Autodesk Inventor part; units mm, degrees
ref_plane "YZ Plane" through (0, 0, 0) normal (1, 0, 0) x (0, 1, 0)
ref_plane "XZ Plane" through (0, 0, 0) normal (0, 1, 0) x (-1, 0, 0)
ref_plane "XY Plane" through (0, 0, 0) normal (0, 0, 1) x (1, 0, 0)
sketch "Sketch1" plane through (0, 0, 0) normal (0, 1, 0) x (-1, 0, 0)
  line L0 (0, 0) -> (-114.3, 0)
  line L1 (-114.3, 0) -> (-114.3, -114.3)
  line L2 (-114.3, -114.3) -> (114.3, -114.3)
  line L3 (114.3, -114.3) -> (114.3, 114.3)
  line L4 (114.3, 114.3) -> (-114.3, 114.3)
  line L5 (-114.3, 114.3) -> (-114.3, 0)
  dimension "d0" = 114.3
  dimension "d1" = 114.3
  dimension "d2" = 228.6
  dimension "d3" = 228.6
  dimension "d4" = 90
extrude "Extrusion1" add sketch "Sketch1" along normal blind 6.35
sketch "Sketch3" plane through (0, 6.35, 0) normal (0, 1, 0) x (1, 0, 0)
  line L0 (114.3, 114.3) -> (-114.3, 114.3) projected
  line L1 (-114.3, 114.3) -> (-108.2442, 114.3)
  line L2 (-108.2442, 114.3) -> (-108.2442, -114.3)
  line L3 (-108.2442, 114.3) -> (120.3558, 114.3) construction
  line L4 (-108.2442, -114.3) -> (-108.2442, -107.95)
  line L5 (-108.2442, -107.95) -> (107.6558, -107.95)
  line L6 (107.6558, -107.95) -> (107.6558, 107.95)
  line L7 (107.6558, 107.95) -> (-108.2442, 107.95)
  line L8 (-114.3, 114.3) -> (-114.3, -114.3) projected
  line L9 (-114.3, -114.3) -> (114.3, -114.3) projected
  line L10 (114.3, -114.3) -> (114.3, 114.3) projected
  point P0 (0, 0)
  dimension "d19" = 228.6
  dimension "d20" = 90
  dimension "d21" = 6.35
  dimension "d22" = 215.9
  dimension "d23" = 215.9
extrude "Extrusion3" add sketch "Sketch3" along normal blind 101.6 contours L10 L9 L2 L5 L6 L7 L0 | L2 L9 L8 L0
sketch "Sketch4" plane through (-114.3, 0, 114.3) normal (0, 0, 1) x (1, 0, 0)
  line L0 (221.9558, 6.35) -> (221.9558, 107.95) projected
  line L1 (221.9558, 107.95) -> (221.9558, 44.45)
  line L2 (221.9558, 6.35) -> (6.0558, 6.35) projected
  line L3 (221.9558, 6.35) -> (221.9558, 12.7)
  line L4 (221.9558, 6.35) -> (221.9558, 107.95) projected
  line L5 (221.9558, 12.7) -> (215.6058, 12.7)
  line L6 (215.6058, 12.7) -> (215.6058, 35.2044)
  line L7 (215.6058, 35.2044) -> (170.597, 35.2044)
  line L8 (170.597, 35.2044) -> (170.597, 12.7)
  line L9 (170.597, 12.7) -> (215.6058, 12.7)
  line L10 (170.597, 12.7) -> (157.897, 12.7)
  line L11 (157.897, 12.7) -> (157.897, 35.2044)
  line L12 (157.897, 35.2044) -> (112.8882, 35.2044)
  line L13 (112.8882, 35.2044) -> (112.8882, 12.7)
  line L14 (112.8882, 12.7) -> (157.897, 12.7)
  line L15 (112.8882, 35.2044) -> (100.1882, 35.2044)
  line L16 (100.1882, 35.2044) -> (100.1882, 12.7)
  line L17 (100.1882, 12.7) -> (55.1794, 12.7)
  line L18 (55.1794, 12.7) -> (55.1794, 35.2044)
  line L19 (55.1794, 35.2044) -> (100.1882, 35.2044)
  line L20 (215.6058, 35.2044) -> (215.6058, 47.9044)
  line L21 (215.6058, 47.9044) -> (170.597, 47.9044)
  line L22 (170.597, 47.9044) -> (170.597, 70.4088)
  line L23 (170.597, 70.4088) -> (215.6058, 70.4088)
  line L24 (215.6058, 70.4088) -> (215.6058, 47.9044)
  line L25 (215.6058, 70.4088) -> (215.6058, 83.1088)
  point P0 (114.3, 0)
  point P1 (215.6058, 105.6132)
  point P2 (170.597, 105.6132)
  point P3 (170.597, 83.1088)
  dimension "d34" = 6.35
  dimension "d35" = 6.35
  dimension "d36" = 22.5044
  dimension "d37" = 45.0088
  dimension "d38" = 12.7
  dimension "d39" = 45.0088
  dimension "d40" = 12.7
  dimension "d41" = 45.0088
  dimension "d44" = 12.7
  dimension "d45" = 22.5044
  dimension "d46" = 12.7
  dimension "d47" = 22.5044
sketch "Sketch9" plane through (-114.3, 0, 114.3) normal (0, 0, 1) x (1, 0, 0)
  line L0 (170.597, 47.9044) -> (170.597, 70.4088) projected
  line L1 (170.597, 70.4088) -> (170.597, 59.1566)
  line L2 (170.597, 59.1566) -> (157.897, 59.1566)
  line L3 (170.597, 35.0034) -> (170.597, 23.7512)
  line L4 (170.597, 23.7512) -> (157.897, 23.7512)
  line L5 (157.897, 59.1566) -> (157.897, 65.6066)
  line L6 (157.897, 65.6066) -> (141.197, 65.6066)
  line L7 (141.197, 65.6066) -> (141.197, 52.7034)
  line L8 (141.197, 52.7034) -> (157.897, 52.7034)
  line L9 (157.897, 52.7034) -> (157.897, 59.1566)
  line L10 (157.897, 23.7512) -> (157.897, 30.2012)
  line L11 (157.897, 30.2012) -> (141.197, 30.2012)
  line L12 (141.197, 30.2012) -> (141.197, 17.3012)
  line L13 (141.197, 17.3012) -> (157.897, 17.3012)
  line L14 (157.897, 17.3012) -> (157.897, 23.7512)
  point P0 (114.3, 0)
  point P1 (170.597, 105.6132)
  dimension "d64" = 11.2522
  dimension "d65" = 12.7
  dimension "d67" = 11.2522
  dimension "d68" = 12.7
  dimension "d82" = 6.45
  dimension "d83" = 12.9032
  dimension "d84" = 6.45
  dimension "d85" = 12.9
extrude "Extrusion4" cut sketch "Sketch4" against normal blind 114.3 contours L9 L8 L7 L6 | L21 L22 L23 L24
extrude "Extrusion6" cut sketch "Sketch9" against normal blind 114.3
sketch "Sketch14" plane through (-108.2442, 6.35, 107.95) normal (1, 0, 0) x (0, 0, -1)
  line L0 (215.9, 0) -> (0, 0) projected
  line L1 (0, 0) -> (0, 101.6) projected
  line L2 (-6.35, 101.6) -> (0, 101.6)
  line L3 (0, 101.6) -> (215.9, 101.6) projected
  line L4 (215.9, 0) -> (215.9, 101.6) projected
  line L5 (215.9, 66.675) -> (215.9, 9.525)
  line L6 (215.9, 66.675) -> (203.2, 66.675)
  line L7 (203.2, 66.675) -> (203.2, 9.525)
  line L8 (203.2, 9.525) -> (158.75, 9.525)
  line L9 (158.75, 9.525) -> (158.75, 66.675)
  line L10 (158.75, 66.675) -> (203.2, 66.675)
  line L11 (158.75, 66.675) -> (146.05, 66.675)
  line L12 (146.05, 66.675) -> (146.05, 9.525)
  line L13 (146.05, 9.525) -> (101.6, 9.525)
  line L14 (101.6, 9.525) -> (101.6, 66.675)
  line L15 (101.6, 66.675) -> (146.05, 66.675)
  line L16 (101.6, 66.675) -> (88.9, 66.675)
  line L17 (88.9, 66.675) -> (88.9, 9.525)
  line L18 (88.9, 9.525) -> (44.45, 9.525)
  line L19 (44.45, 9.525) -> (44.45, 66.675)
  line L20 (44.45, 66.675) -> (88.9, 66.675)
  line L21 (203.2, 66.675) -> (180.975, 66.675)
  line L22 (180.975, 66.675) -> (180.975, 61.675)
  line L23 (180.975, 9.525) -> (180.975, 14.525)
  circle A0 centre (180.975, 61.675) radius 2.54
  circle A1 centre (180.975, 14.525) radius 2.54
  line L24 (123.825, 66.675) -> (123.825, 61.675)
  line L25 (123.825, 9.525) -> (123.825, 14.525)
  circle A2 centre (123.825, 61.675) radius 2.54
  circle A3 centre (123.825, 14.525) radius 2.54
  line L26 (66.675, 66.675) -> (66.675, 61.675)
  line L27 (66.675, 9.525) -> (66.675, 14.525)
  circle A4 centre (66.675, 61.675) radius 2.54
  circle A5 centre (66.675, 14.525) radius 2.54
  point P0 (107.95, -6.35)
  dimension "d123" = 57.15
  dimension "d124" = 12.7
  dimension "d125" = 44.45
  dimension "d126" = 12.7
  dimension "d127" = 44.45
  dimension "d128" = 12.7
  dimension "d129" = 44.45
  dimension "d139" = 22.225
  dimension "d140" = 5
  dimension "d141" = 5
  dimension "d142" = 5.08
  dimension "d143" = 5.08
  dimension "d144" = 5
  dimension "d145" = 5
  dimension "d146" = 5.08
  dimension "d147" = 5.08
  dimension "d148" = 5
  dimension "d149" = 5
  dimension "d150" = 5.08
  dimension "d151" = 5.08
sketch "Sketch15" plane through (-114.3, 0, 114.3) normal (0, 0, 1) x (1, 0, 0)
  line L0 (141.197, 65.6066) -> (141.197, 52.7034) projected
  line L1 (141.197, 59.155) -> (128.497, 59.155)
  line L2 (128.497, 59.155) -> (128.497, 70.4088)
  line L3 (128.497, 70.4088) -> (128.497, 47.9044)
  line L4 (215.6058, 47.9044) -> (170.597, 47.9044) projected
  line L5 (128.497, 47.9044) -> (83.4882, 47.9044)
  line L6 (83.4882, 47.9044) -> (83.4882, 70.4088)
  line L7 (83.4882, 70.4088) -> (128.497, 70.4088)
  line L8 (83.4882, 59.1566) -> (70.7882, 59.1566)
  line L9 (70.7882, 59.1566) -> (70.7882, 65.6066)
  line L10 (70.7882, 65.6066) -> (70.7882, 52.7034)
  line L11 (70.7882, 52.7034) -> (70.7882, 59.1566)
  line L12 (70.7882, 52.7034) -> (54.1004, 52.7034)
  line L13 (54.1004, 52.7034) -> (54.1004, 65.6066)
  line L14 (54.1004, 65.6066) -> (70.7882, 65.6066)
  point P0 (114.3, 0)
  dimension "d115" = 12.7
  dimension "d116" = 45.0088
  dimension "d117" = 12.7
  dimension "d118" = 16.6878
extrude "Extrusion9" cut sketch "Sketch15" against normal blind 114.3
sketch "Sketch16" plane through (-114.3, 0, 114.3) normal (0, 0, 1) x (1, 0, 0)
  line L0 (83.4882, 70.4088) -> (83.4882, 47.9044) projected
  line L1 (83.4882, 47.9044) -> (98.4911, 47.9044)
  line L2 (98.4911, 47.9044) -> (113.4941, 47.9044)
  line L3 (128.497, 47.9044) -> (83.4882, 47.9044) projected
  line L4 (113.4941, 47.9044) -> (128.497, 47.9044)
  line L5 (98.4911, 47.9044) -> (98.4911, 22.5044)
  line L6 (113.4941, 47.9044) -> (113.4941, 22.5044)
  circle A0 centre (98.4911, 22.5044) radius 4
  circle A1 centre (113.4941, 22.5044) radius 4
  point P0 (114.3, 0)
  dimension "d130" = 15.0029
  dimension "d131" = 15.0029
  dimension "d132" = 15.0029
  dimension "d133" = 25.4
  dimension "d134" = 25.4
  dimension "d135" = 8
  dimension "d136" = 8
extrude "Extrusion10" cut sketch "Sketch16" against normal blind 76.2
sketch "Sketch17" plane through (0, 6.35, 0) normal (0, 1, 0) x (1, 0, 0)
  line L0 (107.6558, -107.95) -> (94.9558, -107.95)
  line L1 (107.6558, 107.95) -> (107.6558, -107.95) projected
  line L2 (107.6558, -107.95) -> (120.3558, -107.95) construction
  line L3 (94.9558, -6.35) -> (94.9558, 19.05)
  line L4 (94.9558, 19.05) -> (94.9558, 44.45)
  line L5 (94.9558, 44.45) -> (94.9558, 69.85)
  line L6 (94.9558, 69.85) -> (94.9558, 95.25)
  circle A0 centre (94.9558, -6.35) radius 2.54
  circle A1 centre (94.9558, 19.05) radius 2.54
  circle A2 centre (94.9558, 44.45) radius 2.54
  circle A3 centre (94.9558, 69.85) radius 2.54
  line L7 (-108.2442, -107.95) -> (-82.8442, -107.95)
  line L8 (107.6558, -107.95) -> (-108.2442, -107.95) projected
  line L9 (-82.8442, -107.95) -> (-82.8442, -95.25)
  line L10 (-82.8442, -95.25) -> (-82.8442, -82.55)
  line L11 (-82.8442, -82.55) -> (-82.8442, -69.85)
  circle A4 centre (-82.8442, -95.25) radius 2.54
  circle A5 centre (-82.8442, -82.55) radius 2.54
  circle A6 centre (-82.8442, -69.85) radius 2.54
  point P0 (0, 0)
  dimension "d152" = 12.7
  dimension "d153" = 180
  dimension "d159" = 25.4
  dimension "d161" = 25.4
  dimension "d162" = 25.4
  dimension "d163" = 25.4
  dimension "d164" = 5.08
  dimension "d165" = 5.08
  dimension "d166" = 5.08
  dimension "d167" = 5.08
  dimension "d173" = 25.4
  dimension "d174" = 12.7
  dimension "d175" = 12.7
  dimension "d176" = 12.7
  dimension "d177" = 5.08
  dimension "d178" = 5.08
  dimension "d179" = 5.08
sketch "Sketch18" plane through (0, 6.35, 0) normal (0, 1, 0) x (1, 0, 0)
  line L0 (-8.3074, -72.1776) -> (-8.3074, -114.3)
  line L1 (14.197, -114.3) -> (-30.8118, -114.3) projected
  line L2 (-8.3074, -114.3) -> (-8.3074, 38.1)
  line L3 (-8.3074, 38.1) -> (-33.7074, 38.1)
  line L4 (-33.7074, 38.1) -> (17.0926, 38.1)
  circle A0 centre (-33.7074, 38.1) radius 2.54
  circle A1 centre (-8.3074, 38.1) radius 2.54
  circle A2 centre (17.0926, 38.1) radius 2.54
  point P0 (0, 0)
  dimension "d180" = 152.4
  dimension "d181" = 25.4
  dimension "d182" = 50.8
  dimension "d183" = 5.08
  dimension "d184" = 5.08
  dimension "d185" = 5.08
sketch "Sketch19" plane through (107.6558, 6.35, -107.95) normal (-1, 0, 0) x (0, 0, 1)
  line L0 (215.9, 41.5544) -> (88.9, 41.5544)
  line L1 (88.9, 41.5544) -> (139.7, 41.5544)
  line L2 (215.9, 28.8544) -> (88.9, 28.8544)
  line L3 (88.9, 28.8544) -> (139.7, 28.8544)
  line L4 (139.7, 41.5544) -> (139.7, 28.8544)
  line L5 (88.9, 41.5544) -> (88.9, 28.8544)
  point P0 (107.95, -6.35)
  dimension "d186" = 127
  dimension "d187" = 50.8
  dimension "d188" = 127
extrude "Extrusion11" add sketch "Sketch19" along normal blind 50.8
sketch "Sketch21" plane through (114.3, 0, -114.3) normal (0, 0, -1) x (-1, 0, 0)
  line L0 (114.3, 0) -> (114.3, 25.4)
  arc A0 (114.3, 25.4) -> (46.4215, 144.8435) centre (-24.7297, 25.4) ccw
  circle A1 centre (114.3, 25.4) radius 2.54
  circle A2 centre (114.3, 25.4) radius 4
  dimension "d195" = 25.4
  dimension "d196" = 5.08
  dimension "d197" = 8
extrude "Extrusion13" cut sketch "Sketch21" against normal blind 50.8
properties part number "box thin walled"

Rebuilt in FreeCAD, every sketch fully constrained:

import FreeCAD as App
import Part
import Sketcher
from FreeCAD import Vector
Q = App.Units.Quantity


def add_polygon(sketch, points):
    """Adds a closed chain of lines whose ends are joined by coincident constraints."""
    first, n = sketch.GeometryCount, len(points)
    for a, b in zip(points, points[1:] + points[:1]):
        sketch.addGeometry(Part.LineSegment(App.Vector(*a, 0), App.Vector(*b, 0)), False)
    for i in range(n):
        sketch.addConstraint(Sketcher.Constraint("Coincident", first + i, 2, first + (i + 1) % n, 1))

doc = App.newDocument("Part")
params = doc.addObject("Spreadsheet::Sheet", "Params")
for row, (alias, value) in enumerate([
    ("sketch1_width", "9 in"),
    ("pad1_length", "0.25 in"),
    ("sketch2_width", "9 in"),
    ("sketch2_width2", "8.5 in"),
    ("pad2_length", "4 in"),
    ("sketch3_width", "1.772 in"),
    ("sketch3_height", "0.886 in"),
    ("pocket1_length", "4.5 in"),
    ("sketch4_height", "0.508 in"),
    ("pocket2_length", "4.5 in"),
    ("sketch5_width", "1.772 in"),
    ("sketch5_width2", "0.657 in"),
    ("sketch5_height", "0.886 in"),
    ("sketch5_height2", "0.508 in"),
    ("pocket3_length", "4.5 in"),
    ("pocket4_length", "3 in"),
    ("sketch7_height", "2 in"),
    ("sketch7_width", "0.5 in"),
    ("pad3_length", "2 in"),
    ("pocket5_length", "2 in"),
], start=1):
    params.set(f"A{row}", alias)
    params.set(f"B{row}", "=" + value)
    params.setAlias(f"B{row}", alias)

body = doc.addObject("PartDesign::Body", "Body")

# Sketch on XZ plane
sketch1 = body.newObject("Sketcher::SketchObject", "Sketch")
sketch1.AttachmentSupport = (doc.getObject("XZ_Plane"), [""])
sketch1.MapMode = "FlatFace"
add_polygon(sketch1, [(114, 114), (114, -114), (-114, -114), (-114, 114)])  # lines 0-3
sketch1.addConstraint([
    Sketcher.Constraint("Vertical", 0),
    Sketcher.Constraint("Horizontal", 1),
    Sketcher.Constraint("Vertical", 2),
    Sketcher.Constraint("Horizontal", 3),
    Sketcher.Constraint("Symmetric", 0, 2, 2, 2, -1, 1),
    Sketcher.Constraint("Equal", 3, 0),
    Sketcher.Constraint("DistanceX", 1, 2, 1, 1, Q("9 in")),
])
sketch1.setExpression("Constraints[10]", "Params.sketch1_width")
pad1 = body.newObject("PartDesign::Pad", "Pad")
pad1.Profile = sketch1
pad1.setExpression("Length", "Params.pad1_length")
pad1.Reversed = True

# Sketch on XZ plane
sketch2 = body.newObject("Sketcher::SketchObject", "Sketch001")
sketch2.AttachmentSupport = (doc.getObject("XZ_Plane"), [""])
sketch2.MapMode = "FlatFace"
sketch2.AttachmentOffset = App.Placement(Vector(0, 0, -0.25 * 25.4), App.Rotation())
add_polygon(sketch2, [(114, 114), (114, -114), (-114, -114), (-114, 114)])  # lines 0-3
add_polygon(sketch2, [(108, 108), (-108, 108), (-108, -108), (108, -108)])  # lines 4-7
sketch2.addConstraint([
    Sketcher.Constraint("Vertical", 0),
    Sketcher.Constraint("Horizontal", 1),
    Sketcher.Constraint("Vertical", 2),
    Sketcher.Constraint("Horizontal", 3),
    Sketcher.Constraint("Horizontal", 4),
    Sketcher.Constraint("Vertical", 5),
    Sketcher.Constraint("Horizontal", 6),
    Sketcher.Constraint("Vertical", 7),
    Sketcher.Constraint("Symmetric", 0, 2, 2, 2, -1, 1),
    Sketcher.Constraint("Equal", 3, 0),
    Sketcher.Constraint("Equal", 6, 5),
    Sketcher.Constraint("DistanceX", 1, 2, 1, 1, Q("9 in")),
    Sketcher.Constraint("DistanceX", 4, 2, 4, 1, Q("8.5 in")),
    Sketcher.Constraint("DistanceY", 4, 2, 2, 2, Q("0.25 in")),
    Sketcher.Constraint("DistanceX", 4, 2, -1, 1, Q("108.2442 mm")),
])
sketch2.setExpression("Constraints[19]", "Params.sketch2_width")
sketch2.setExpression("Constraints[20]", "Params.sketch2_width2")
pad2 = body.newObject("PartDesign::Pad", "Pad001")
pad2.Profile = sketch2
pad2.setExpression("Length", "Params.pad2_length")
pad2.Reversed = True

# Sketch on XY plane
sketch3 = body.newObject("Sketcher::SketchObject", "Sketch002")
sketch3.AttachmentSupport = (doc.getObject("XY_Plane"), [""])
sketch3.MapMode = "FlatFace"
sketch3.AttachmentOffset = App.Placement(Vector(0, 0, 4.5 * 25.4), App.Rotation())
add_polygon(sketch3, [(56, 13), (101, 13), (101, 35), (56, 35)])  # lines 0-3
add_polygon(sketch3, [(56, 48), (101, 48), (101, 70), (56, 70)])  # lines 4-7
sketch3.addConstraint([
    Sketcher.Constraint("Horizontal", 0),
    Sketcher.Constraint("Vertical", 1),
    Sketcher.Constraint("Horizontal", 2),
    Sketcher.Constraint("Vertical", 3),
    Sketcher.Constraint("Horizontal", 4),
    Sketcher.Constraint("Vertical", 5),
    Sketcher.Constraint("Horizontal", 6),
    Sketcher.Constraint("Vertical", 7),
    Sketcher.Constraint("Vertical", 1, 2, 4, 2),
    Sketcher.Constraint("Vertical", 3, 2, 6, 2),
    Sketcher.Constraint("Equal", 3, 5),
    Sketcher.Constraint("DistanceY", -1, 1, 0, 2, Q("0.5 in")),
    Sketcher.Constraint("DistanceY", 1, 2, 4, 2, Q("0.5 in")),
    Sketcher.Constraint("DistanceX", 0, 1, 0, 2, Q("1.772 in")),
    Sketcher.Constraint("DistanceY", 1, 1, 1, 2, Q("0.886 in")),
    Sketcher.Constraint("DistanceX", -1, 1, 0, 2, Q("101.3058 mm")),
])
sketch3.setExpression("Constraints[21]", "Params.sketch3_width")
sketch3.setExpression("Constraints[22]", "Params.sketch3_height")
pocket1 = body.newObject("PartDesign::Pocket", "Pocket")
pocket1.Profile = sketch3
pocket1.setExpression("Length", "Params.pocket1_length")

# Sketch on XY plane
sketch4 = body.newObject("Sketcher::SketchObject", "Sketch003")
sketch4.AttachmentSupport = (doc.getObject("XY_Plane"), [""])
sketch4.MapMode = "FlatFace"
sketch4.AttachmentOffset = App.Placement(Vector(0, 0, 4.5 * 25.4), App.Rotation())
add_polygon(sketch4, [(44, 53), (44, 66), (27, 66), (27, 53)])  # lines 0-3
add_polygon(sketch4, [(44, 17), (44, 30), (27, 30), (27, 17)])  # lines 4-7
sketch4.addConstraint([
    Sketcher.Constraint("Vertical", 0),
    Sketcher.Constraint("Horizontal", 1),
    Sketcher.Constraint("Vertical", 2),
    Sketcher.Constraint("Horizontal", 3),
    Sketcher.Constraint("Vertical", 4),
    Sketcher.Constraint("Horizontal", 5),
    Sketcher.Constraint("Vertical", 6),
    Sketcher.Constraint("Horizontal", 7),
    Sketcher.Constraint("Vertical", 3, 2, 4, 2),
    Sketcher.Constraint("Vertical", 2, 2, 5, 2),
    Sketcher.Constraint("DistanceY", 0, 1, 0, 2, Q("0.508 in")),
    Sketcher.Constraint("DistanceY", 4, 1, 4, 2, Q("12.9 mm")),
    Sketcher.Constraint("DistanceX", 1, 2, 1, 1, Q("16.7 mm")),
    Sketcher.Constraint("DistanceX", -1, 1, 0, 2, Q("43.597 mm")),
    Sketcher.Constraint("DistanceY", -1, 1, 0, 2, Q("65.6066 mm")),
    Sketcher.Constraint("DistanceY", -1, 1, 4, 2, Q("30.2012 mm")),
])
sketch4.setExpression("Constraints[18]", "Params.sketch4_height")
pocket2 = body.newObject("PartDesign::Pocket", "Pocket001")
pocket2.Profile = sketch4
pocket2.setExpression("Length", "Params.pocket2_length")

# Sketch on XY plane
sketch5 = body.newObject("Sketcher::SketchObject", "Sketch004")
sketch5.AttachmentSupport = (doc.getObject("XY_Plane"), [""])
sketch5.MapMode = "FlatFace"
sketch5.AttachmentOffset = App.Placement(Vector(0, 0, 4.5 * 25.4), App.Rotation())
add_polygon(sketch5, [(14, 48), (14, 70), (-31, 70), (-31, 48)])  # lines 0-3
add_polygon(sketch5, [(-44, 53), (-44, 66), (-60, 66), (-60, 53)])  # lines 4-7
sketch5.addConstraint([
    Sketcher.Constraint("Vertical", 0),
    Sketcher.Constraint("Horizontal", 1),
    Sketcher.Constraint("Vertical", 2),
    Sketcher.Constraint("Horizontal", 3),
    Sketcher.Constraint("Vertical", 4),
    Sketcher.Constraint("Horizontal", 5),
    Sketcher.Constraint("Vertical", 6),
    Sketcher.Constraint("Horizontal", 7),
    Sketcher.Constraint("DistanceX", 4, 2, 1, 2, Q("0.5 in")),
    Sketcher.Constraint("DistanceX", 1, 2, 1, 1, Q("1.772 in")),
    Sketcher.Constraint("DistanceX", 5, 2, 5, 1, Q("0.657 in")),
    Sketcher.Constraint("DistanceY", 0, 1, 0, 2, Q("0.886 in")),
    Sketcher.Constraint("DistanceY", 4, 1, 4, 2, Q("0.508 in")),
    Sketcher.Constraint("DistanceY", -1, 1, 0, 2, Q("2.772 in")),
    Sketcher.Constraint("DistanceX", -1, 1, 0, 2, Q("14.197 mm")),
    Sketcher.Constraint("DistanceY", -1, 1, 4, 2, Q("65.6066 mm")),
])
sketch5.setExpression("Constraints[17]", "Params.sketch5_width")
sketch5.setExpression("Constraints[18]", "Params.sketch5_width2")
sketch5.setExpression("Constraints[19]", "Params.sketch5_height")
sketch5.setExpression("Constraints[20]", "Params.sketch5_height2")
pocket3 = body.newObject("PartDesign::Pocket", "Pocket002")
pocket3.Profile = sketch5
pocket3.setExpression("Length", "Params.pocket3_length")

# Sketch on XY plane
sketch6 = body.newObject("Sketcher::SketchObject", "Sketch005")
sketch6.AttachmentSupport = (doc.getObject("XY_Plane"), [""])
sketch6.MapMode = "FlatFace"
sketch6.AttachmentOffset = App.Placement(Vector(0, 0, 4.5 * 25.4), App.Rotation())
sketch6.addGeometry([
    Part.Circle(Vector(-0.8, 22.5, 0), Vector(0, 0, 1), 4),
    Part.Circle(Vector(-15.8, 22.5, 0), Vector(0, 0, 1), 4),
], False)
sketch6.addConstraint([
    Sketcher.Constraint("Equal", 0, 1),
    Sketcher.Constraint("Horizontal", 0, 3, 1, 3),
    Sketcher.Constraint("Diameter", 0, Q("8 mm")),
    Sketcher.Constraint("DistanceX", 1, 3, 0, 3, Q("15.003 mm")),
    Sketcher.Constraint("DistanceY", -1, 1, 0, 3, Q("0.886 in")),
    Sketcher.Constraint("DistanceX", 1, 3, -1, 1, Q("0.6224 in")),
])
pocket4 = body.newObject("PartDesign::Pocket", "Pocket003")
pocket4.Profile = sketch6
pocket4.setExpression("Length", "Params.pocket4_length")

# Sketch on YZ plane
sketch7 = body.newObject("Sketcher::SketchObject", "Sketch006")
sketch7.AttachmentSupport = (doc.getObject("YZ_Plane"), [""])
sketch7.MapMode = "FlatFace"
sketch7.AttachmentOffset = App.Placement(Vector(0, 0, 107.6558), App.Rotation())
add_polygon(sketch7, [(35, 32), (48, 32), (48, -19), (35, -19)])  # lines 0-3
sketch7.addConstraint([
    Sketcher.Constraint("Horizontal", 0),
    Sketcher.Constraint("Vertical", 1),
    Sketcher.Constraint("Horizontal", 2),
    Sketcher.Constraint("Vertical", 3),
    Sketcher.Constraint("DistanceY", 1, 2, 1, 1, Q("2 in")),
    Sketcher.Constraint("DistanceX", 0, 1, 0, 2, Q("0.5 in")),
    Sketcher.Constraint("DistanceY", -1, 1, 0, 2, Q("1.25 in")),
    Sketcher.Constraint("DistanceX", -1, 1, 0, 2, Q("1.886 in")),
])
sketch7.setExpression("Constraints[8]", "Params.sketch7_height")
sketch7.setExpression("Constraints[9]", "Params.sketch7_width")
pad3 = body.newObject("PartDesign::Pad", "Pad002")
pad3.Profile = sketch7
pad3.setExpression("Length", "Params.pad3_length")
pad3.Reversed = True

# Sketch on XY plane
sketch8 = body.newObject("Sketcher::SketchObject", "Sketch007")
sketch8.AttachmentSupport = (doc.getObject("XY_Plane"), [""])
sketch8.MapMode = "FlatFace"
sketch8.AttachmentOffset = App.Placement(Vector(0, 0, -4.5 * 25.4), App.Rotation())
sketch8.addGeometry(Part.Circle(Vector(0, 25.4, 0), Vector(0, 0, 1), 4), False)
sketch8.addConstraint([
    Sketcher.Constraint("PointOnObject", 0, 3, -2),
    Sketcher.Constraint("DistanceY", -1, 1, 0, 3, Q("1 in")),
    Sketcher.Constraint("Diameter", 0, Q("8 mm")),
])
pocket5 = body.newObject("PartDesign::Pocket", "Pocket004")
pocket5.Profile = sketch8
pocket5.setExpression("Length", "Params.pocket5_length")
pocket5.Reversed = True

doc.recompute()
